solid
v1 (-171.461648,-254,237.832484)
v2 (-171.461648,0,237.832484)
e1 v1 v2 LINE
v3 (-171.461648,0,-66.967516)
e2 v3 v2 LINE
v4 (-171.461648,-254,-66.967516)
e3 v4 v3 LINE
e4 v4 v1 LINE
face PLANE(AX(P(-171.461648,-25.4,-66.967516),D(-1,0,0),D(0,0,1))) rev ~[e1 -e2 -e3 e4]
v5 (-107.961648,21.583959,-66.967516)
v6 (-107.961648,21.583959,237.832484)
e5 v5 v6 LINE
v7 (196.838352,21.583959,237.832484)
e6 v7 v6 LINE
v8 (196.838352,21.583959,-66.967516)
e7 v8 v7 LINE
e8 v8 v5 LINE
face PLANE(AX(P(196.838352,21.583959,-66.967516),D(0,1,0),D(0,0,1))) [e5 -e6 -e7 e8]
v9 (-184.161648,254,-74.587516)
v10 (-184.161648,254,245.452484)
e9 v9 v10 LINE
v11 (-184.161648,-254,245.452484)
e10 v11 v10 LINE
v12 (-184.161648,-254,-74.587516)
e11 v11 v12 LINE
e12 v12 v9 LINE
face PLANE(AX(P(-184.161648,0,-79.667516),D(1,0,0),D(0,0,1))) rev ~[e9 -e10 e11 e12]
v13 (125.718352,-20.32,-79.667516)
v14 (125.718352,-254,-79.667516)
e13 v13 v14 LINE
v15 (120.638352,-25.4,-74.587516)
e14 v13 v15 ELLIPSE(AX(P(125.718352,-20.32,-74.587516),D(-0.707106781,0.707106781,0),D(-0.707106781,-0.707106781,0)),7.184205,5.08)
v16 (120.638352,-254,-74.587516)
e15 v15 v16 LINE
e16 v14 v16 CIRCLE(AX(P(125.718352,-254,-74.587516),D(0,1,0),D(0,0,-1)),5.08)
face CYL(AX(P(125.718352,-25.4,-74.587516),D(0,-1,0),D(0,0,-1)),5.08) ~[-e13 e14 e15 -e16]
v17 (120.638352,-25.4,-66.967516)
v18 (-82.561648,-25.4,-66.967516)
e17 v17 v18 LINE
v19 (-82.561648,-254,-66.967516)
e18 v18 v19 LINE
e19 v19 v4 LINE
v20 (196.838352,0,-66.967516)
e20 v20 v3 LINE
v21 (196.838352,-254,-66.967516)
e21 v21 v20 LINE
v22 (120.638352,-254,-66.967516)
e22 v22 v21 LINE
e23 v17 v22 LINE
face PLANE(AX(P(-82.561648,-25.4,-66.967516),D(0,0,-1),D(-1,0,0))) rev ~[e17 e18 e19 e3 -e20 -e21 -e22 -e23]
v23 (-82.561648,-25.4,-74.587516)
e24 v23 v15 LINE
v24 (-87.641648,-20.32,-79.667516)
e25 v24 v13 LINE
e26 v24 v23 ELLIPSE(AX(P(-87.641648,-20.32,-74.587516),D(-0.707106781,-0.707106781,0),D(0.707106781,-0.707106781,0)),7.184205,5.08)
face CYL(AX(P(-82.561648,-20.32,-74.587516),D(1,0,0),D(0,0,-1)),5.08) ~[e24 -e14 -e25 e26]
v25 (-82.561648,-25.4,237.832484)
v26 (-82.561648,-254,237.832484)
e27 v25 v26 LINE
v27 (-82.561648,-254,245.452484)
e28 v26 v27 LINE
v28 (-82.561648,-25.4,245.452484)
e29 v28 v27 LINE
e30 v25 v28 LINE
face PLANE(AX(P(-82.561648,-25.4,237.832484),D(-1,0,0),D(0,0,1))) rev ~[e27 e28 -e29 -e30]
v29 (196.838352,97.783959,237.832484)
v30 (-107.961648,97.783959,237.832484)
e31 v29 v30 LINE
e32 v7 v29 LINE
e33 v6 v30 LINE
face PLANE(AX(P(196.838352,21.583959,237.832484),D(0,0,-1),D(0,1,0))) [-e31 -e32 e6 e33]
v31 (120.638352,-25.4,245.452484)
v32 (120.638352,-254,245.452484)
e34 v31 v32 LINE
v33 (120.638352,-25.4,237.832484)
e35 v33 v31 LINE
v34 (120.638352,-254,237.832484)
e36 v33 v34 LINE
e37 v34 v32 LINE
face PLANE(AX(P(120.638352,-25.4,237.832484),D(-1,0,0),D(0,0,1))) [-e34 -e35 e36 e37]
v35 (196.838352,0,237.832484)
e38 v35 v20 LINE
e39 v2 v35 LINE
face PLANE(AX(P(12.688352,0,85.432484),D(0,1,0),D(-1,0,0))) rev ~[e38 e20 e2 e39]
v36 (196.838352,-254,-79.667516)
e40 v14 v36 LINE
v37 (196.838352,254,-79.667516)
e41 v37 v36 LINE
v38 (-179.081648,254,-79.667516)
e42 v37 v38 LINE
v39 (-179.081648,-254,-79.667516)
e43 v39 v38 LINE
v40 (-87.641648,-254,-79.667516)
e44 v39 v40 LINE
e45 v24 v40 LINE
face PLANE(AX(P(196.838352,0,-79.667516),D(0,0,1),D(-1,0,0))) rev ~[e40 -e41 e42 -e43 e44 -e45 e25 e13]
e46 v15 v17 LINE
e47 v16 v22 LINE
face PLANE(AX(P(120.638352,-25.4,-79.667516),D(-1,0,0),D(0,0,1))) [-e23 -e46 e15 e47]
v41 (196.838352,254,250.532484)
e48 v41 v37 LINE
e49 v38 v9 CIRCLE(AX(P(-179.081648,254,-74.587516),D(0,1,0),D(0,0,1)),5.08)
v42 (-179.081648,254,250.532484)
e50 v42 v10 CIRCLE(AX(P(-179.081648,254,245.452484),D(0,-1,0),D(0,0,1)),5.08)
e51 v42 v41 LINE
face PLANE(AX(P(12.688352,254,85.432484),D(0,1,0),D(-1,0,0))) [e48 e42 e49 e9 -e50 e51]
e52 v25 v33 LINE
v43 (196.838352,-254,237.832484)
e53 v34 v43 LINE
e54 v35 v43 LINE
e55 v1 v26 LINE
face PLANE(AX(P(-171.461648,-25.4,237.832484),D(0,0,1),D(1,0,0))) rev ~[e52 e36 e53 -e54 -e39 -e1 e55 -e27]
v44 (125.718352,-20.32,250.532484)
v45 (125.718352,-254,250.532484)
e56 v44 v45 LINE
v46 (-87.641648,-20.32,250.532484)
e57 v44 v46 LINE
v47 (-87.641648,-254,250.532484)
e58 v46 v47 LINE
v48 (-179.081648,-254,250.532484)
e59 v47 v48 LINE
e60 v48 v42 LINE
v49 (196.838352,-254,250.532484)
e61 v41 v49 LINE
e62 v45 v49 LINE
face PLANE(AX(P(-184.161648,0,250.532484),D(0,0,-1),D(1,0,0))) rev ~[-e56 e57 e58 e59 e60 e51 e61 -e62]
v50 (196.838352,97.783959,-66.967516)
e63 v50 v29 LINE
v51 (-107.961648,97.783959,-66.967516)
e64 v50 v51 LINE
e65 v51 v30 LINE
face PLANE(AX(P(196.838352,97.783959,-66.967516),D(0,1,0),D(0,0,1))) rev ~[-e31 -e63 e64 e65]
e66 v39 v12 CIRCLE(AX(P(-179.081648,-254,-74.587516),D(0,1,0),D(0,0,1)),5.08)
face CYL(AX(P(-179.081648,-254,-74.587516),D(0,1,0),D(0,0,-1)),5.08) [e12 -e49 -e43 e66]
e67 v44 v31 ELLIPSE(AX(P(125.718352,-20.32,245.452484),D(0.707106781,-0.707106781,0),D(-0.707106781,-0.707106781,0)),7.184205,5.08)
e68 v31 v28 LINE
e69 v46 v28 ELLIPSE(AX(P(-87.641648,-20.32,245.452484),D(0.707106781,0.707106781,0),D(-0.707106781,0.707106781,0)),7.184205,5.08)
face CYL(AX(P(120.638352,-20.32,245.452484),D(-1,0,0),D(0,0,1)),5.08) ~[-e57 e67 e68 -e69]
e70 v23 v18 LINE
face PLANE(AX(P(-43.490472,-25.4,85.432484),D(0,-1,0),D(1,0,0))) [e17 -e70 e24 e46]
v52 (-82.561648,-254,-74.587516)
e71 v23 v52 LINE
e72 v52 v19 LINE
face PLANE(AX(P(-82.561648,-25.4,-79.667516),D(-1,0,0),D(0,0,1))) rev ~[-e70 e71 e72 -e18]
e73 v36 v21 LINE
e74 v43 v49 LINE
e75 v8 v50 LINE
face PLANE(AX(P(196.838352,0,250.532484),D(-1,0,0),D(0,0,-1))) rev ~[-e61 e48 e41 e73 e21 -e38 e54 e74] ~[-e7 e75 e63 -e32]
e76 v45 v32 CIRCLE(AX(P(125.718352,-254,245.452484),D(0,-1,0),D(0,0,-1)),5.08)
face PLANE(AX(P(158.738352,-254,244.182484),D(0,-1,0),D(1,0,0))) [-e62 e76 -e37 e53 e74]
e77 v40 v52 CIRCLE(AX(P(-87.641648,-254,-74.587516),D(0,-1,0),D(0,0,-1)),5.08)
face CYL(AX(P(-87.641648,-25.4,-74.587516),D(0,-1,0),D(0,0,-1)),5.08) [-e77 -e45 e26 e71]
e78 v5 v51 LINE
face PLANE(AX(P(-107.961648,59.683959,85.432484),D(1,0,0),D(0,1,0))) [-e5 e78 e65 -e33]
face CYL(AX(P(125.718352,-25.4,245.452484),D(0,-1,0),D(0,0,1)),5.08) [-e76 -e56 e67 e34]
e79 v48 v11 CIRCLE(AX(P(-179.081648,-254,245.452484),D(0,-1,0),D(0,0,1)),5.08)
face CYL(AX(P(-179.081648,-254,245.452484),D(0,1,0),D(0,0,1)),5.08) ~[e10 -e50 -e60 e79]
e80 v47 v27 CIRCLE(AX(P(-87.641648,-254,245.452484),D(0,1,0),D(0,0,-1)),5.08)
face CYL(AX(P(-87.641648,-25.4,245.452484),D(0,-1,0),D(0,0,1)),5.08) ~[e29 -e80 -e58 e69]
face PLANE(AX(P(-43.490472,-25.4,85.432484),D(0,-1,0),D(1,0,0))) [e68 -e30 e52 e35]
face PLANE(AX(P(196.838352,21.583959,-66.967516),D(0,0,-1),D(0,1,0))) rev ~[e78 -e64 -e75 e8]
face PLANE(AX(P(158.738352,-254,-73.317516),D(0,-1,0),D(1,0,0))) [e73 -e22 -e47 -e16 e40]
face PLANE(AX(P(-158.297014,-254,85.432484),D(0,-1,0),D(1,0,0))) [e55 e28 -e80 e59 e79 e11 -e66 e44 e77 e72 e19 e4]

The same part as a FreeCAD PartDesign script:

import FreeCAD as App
import Part
import Sketcher

V = App.Vector
Q = App.Units.Quantity


def edges_at(feature, points):
    """Names of the edges that pass closest to the given points."""
    edges = feature.Shape.Edges
    near = lambda p: min(range(len(edges)), key=lambda i: edges[i].distToShape(Part.Vertex(*p))[0])
    return sorted({f"Edge{near(p) + 1}" for p in points})

doc = App.newDocument("Part")
params = doc.addObject("Spreadsheet::Sheet", "Params")
for row, (alias, value) in enumerate([
    ("sketch1_width", "15 in"),
    ("sketch1_height", "12 in"),
    ("sketch1_height2", "13 in"),
    ("sketch1_width2", "14.5 in"),
    ("pad1_length", "1 in"),
    ("sketch2_width", "4 in"),
    ("sketch2_width2", "3 in"),
    ("sketch2_height", "13 in"),
    ("sketch2_height2", "12 in"),
    ("sketch2_width3", "3.5 in"),
    ("pad2_length", "9 in"),
    ("sketch3_width", "15 in"),
    ("sketch3_height", "13 in"),
    ("pad3_length", "10 in"),
    ("fillet_radius", "0.2 in"),
    ("sketch4_width", "3 in"),
    ("sketch4_height", "12 in"),
    ("pocket1_length", "12 in"),
], start=1):
    params.set(f"A{row}", alias)
    params.set(f"B{row}", "=" + value)
    params.setAlias(f"B{row}", alias)

body = doc.addObject("PartDesign::Body", "Body")

# Sketch on XZ plane
sketch1 = doc.addObject("Sketcher::SketchObject", "Sketch")
body.addObject(sketch1)
sketch1.AttachmentSupport = (doc.XZ_Plane, [""])
sketch1.MapMode = "FlatFace"
sketch1.addGeometry([
    Part.LineSegment(V(-171, -67, 0), V(-171, 238, 0)),  # 0
    Part.LineSegment(V(-171, 238, 0), V(197, 238, 0)),  # 1
    Part.LineSegment(V(197, 238, 0), V(197, 251, 0)),  # 2
    Part.LineSegment(V(197, 251, 0), V(-184, 251, 0)),  # 3
    Part.LineSegment(V(-184, 251, 0), V(-184, -80, 0)),  # 4
    Part.LineSegment(V(-184, -80, 0), V(197, -80, 0)),  # 5
    Part.LineSegment(V(197, -80, 0), V(197, -67, 0)),  # 6
    Part.LineSegment(V(197, -67, 0), V(-171, -67, 0)),  # 7
], False)
sketch1.addConstraint([
    Sketcher.Constraint("Coincident", 0, 2, 1, 1),
    Sketcher.Constraint("Coincident", 1, 2, 2, 1),
    Sketcher.Constraint("Coincident", 2, 2, 3, 1),
    Sketcher.Constraint("Coincident", 3, 2, 4, 1),
    Sketcher.Constraint("Coincident", 4, 2, 5, 1),
    Sketcher.Constraint("Coincident", 5, 2, 6, 1),
    Sketcher.Constraint("Coincident", 6, 2, 7, 1),
    Sketcher.Constraint("Coincident", 7, 2, 0, 1),
    Sketcher.Constraint("Vertical", 0),
    Sketcher.Constraint("Horizontal", 1),
    Sketcher.Constraint("Vertical", 2),
    Sketcher.Constraint("Horizontal", 3),
    Sketcher.Constraint("Vertical", 4),
    Sketcher.Constraint("Horizontal", 5),
    Sketcher.Constraint("Vertical", 6),
    Sketcher.Constraint("Horizontal", 7),
    Sketcher.Constraint("Vertical", 2, 2, 5, 2),
    Sketcher.Constraint("Equal", 2, 6),
    Sketcher.Constraint("DistanceX", 3, 2, 3, 1, Q("15 in")),
    Sketcher.Constraint("DistanceY", 0, 1, 0, 2, Q("12 in")),
    Sketcher.Constraint("DistanceY", 4, 2, 4, 1, Q("13 in")),
    Sketcher.Constraint("DistanceX", 1, 1, 1, 2, Q("14.5 in")),
    Sketcher.Constraint("DistanceX", 0, 2, -1, 1, 171.461648),
    Sketcher.Constraint("DistanceY", -1, 1, 0, 2, 237.832484),
])
sketch1.setExpression("Constraints[18]", "Params.sketch1_width")
sketch1.setExpression("Constraints[19]", "Params.sketch1_height")
sketch1.setExpression("Constraints[20]", "Params.sketch1_height2")
sketch1.setExpression("Constraints[21]", "Params.sketch1_width2")
pad1 = doc.addObject("PartDesign::Pad", "Pad")
body.addObject(pad1)
pad1.Profile = sketch1
pad1.setExpression("Length", "Params.pad1_length")

# Sketch on XZ plane
sketch2 = doc.addObject("Sketcher::SketchObject", "Sketch001")
body.addObject(sketch2)
sketch2.AttachmentSupport = (doc.XZ_Plane, [""])
sketch2.MapMode = "FlatFace"
sketch2.AttachmentOffset = App.Placement(V(0, 0, 1 * 25.4), App.Rotation())
sketch2.addGeometry([
    Part.LineSegment(V(-83, 238, 0), V(-83, 251, 0)),  # 0
    Part.LineSegment(V(-83, 251, 0), V(-184, 251, 0)),  # 1
    Part.LineSegment(V(-184, 251, 0), V(-184, -80, 0)),  # 2
    Part.LineSegment(V(-184, -80, 0), V(-83, -80, 0)),  # 3
    Part.LineSegment(V(-83, -80, 0), V(-83, -67, 0)),  # 4
    Part.LineSegment(V(-83, -67, 0), V(-171, -67, 0)),  # 5
    Part.LineSegment(V(-171, -67, 0), V(-171, 238, 0)),  # 6
    Part.LineSegment(V(-171, 238, 0), V(-83, 238, 0)),  # 7
    Part.LineSegment(V(121, 251, 0), V(121, 238, 0)),  # 8
    Part.LineSegment(V(121, 238, 0), V(197, 238, 0)),  # 9
    Part.LineSegment(V(197, 238, 0), V(197, 251, 0)),  # 10
    Part.LineSegment(V(197, 251, 0), V(121, 251, 0)),  # 11
    Part.LineSegment(V(121, -67, 0), V(121, -80, 0)),  # 12
    Part.LineSegment(V(121, -80, 0), V(197, -80, 0)),  # 13
    Part.LineSegment(V(197, -80, 0), V(197, -67, 0)),  # 14
    Part.LineSegment(V(197, -67, 0), V(121, -67, 0)),  # 15
], False)
sketch2.addConstraint([
    Sketcher.Constraint("Coincident", 0, 2, 1, 1),
    Sketcher.Constraint("Coincident", 1, 2, 2, 1),
    Sketcher.Constraint("Coincident", 2, 2, 3, 1),
    Sketcher.Constraint("Coincident", 3, 2, 4, 1),
    Sketcher.Constraint("Coincident", 4, 2, 5, 1),
    Sketcher.Constraint("Coincident", 5, 2, 6, 1),
    Sketcher.Constraint("Coincident", 6, 2, 7, 1),
    Sketcher.Constraint("Coincident", 7, 2, 0, 1),
    Sketcher.Constraint("Coincident", 8, 2, 9, 1),
    Sketcher.Constraint("Coincident", 9, 2, 10, 1),
    Sketcher.Constraint("Coincident", 10, 2, 11, 1),
    Sketcher.Constraint("Coincident", 11, 2, 8, 1),
    Sketcher.Constraint("Coincident", 12, 2, 13, 1),
    Sketcher.Constraint("Coincident", 13, 2, 14, 1),
    Sketcher.Constraint("Coincident", 14, 2, 15, 1),
    Sketcher.Constraint("Coincident", 15, 2, 12, 1),
    Sketcher.Constraint("Vertical", 0),
    Sketcher.Constraint("Horizontal", 1),
    Sketcher.Constraint("Vertical", 2),
    Sketcher.Constraint("Horizontal", 3),
    Sketcher.Constraint("Vertical", 4),
    Sketcher.Constraint("Horizontal", 5),
    Sketcher.Constraint("Vertical", 6),
    Sketcher.Constraint("Horizontal", 7),
    Sketcher.Constraint("Vertical", 8),
    Sketcher.Constraint("Horizontal", 9),
    Sketcher.Constraint("Vertical", 10),
    Sketcher.Constraint("Horizontal", 11),
    Sketcher.Constraint("Vertical", 12),
    Sketcher.Constraint("Horizontal", 13),
    Sketcher.Constraint("Vertical", 14),
    Sketcher.Constraint("Horizontal", 15),
    Sketcher.Constraint("Horizontal", 7, 2, 8, 2),
    Sketcher.Constraint("Horizontal", 1, 2, 10, 2),
    Sketcher.Constraint("Horizontal", 3, 2, 12, 2),
    Sketcher.Constraint("Horizontal", 5, 2, 14, 2),
    Sketcher.Constraint("Vertical", 0, 2, 3, 2),
    Sketcher.Constraint("Vertical", 11, 2, 12, 2),
    Sketcher.Constraint("Vertical", 10, 2, 13, 2),
    Sketcher.Constraint("Equal", 0, 4),
    Sketcher.Constraint("DistanceX", 1, 2, 1, 1, Q("4 in")),
    Sketcher.Constraint("DistanceX", 9, 1, 9, 2, Q("3 in")),
    Sketcher.Constraint("DistanceY", 2, 2, 2, 1, Q("13 in")),
    Sketcher.Constraint("DistanceY", 6, 1, 6, 2, Q("12 in")),
    Sketcher.Constraint("DistanceX", 5, 2, 5, 1, Q("3.5 in")),
    Sketcher.Constraint("DistanceX", 7, 2, 8, 2, Q("8 in")),
    Sketcher.Constraint("DistanceX", 0, 2, -1, 1, 82.561648),
    Sketcher.Constraint("DistanceY", -1, 1, 0, 2, 250.532484),
])
sketch2.setExpression("Constraints[40]", "Params.sketch2_width")
sketch2.setExpression("Constraints[41]", "Params.sketch2_width2")
sketch2.setExpression("Constraints[42]", "Params.sketch2_height")
sketch2.setExpression("Constraints[43]", "Params.sketch2_height2")
sketch2.setExpression("Constraints[44]", "Params.sketch2_width3")
pad2 = doc.addObject("PartDesign::Pad", "Pad001")
body.addObject(pad2)
pad2.Profile = sketch2
pad2.setExpression("Length", "Params.pad2_length")

# Sketch on XZ plane
sketch3 = doc.addObject("Sketcher::SketchObject", "Sketch002")
body.addObject(sketch3)
sketch3.AttachmentSupport = (doc.XZ_Plane, [""])
sketch3.MapMode = "FlatFace"
sketch3.addGeometry([
    Part.LineSegment(V(197, -80, 0), V(-184, -80, 0)),
    Part.LineSegment(V(-184, -80, 0), V(-184, 251, 0)),
    Part.LineSegment(V(-184, 251, 0), V(197, 251, 0)),
    Part.LineSegment(V(197, 251, 0), V(197, -80, 0)),
], False)
sketch3.addConstraint([
    Sketcher.Constraint("Coincident", 0, 2, 1, 1),
    Sketcher.Constraint("Coincident", 1, 2, 2, 1),
    Sketcher.Constraint("Coincident", 2, 2, 3, 1),
    Sketcher.Constraint("Coincident", 3, 2, 0, 1),
    Sketcher.Constraint("Horizontal", 0),
    Sketcher.Constraint("Vertical", 1),
    Sketcher.Constraint("Horizontal", 2),
    Sketcher.Constraint("Vertical", 3),
    Sketcher.Constraint("DistanceX", 0, 2, 0, 1, Q("15 in")),
    Sketcher.Constraint("DistanceY", 1, 1, 1, 2, Q("13 in")),
    Sketcher.Constraint("DistanceX", 0, 2, -1, 1, 184.161648),
    Sketcher.Constraint("DistanceY", 0, 2, -1, 1, 79.667516),
])
sketch3.setExpression("Constraints[8]", "Params.sketch3_width")
sketch3.setExpression("Constraints[9]", "Params.sketch3_height")
pad3 = doc.addObject("PartDesign::Pad", "Pad002")
body.addObject(pad3)
pad3.Profile = sketch3
pad3.setExpression("Length", "Params.pad3_length")
pad3.Reversed = True
doc.recompute()

fillet = doc.addObject("PartDesign::Fillet", "Fillet")
body.addObject(fillet)
fillet.Base = (pad3, edges_at(pad3, [
    (-184.162, 0, -79.668),
    (-184.162, 0, 250.532),
    (-82.562, -139.7, -79.668),
    (120.638, -139.7, -79.668),
    (19.038, -25.4, -79.668),
    (120.638, -139.7, 250.532),
    (19.038, -25.4, 250.532),
    (-82.562, -139.7, 250.532),
]))
fillet.setExpression("Radius", "Params.fillet_radius")

# Sketch on YZ plane
sketch4 = doc.addObject("Sketcher::SketchObject", "Sketch003")
body.addObject(sketch4)
sketch4.AttachmentSupport = (doc.YZ_Plane, [""])
sketch4.MapMode = "FlatFace"
sketch4.AttachmentOffset = App.Placement(V(0, 0, 196.838352), App.Rotation())
sketch4.addGeometry([
    Part.LineSegment(V(22, 238, 0), V(22, -67, 0)),
    Part.LineSegment(V(22, -67, 0), V(98, -67, 0)),
    Part.LineSegment(V(98, -67, 0), V(98, 238, 0)),
    Part.LineSegment(V(98, 238, 0), V(22, 238, 0)),
], False)
sketch4.addConstraint([
    Sketcher.Constraint("Coincident", 0, 2, 1, 1),
    Sketcher.Constraint("Coincident", 1, 2, 2, 1),
    Sketcher.Constraint("Coincident", 2, 2, 3, 1),
    Sketcher.Constraint("Coincident", 3, 2, 0, 1),
    Sketcher.Constraint("Vertical", 0),
    Sketcher.Constraint("Horizontal", 1),
    Sketcher.Constraint("Vertical", 2),
    Sketcher.Constraint("Horizontal", 3),
    Sketcher.Constraint("DistanceX", 1, 1, 1, 2, Q("3 in")),
    Sketcher.Constraint("DistanceY", 0, 2, 0, 1, Q("12 in")),
    Sketcher.Constraint("DistanceX", -1, 1, 0, 2, 21.583959),
    Sketcher.Constraint("DistanceY", 0, 2, -1, 1, 66.967516),
])
sketch4.setExpression("Constraints[8]", "Params.sketch4_width")
sketch4.setExpression("Constraints[9]", "Params.sketch4_height")
pocket1 = doc.addObject("PartDesign::Pocket", "Pocket")
body.addObject(pocket1)
pocket1.Profile = sketch4
pocket1.setExpression("Length", "Params.pocket1_length")

doc.recompute()
